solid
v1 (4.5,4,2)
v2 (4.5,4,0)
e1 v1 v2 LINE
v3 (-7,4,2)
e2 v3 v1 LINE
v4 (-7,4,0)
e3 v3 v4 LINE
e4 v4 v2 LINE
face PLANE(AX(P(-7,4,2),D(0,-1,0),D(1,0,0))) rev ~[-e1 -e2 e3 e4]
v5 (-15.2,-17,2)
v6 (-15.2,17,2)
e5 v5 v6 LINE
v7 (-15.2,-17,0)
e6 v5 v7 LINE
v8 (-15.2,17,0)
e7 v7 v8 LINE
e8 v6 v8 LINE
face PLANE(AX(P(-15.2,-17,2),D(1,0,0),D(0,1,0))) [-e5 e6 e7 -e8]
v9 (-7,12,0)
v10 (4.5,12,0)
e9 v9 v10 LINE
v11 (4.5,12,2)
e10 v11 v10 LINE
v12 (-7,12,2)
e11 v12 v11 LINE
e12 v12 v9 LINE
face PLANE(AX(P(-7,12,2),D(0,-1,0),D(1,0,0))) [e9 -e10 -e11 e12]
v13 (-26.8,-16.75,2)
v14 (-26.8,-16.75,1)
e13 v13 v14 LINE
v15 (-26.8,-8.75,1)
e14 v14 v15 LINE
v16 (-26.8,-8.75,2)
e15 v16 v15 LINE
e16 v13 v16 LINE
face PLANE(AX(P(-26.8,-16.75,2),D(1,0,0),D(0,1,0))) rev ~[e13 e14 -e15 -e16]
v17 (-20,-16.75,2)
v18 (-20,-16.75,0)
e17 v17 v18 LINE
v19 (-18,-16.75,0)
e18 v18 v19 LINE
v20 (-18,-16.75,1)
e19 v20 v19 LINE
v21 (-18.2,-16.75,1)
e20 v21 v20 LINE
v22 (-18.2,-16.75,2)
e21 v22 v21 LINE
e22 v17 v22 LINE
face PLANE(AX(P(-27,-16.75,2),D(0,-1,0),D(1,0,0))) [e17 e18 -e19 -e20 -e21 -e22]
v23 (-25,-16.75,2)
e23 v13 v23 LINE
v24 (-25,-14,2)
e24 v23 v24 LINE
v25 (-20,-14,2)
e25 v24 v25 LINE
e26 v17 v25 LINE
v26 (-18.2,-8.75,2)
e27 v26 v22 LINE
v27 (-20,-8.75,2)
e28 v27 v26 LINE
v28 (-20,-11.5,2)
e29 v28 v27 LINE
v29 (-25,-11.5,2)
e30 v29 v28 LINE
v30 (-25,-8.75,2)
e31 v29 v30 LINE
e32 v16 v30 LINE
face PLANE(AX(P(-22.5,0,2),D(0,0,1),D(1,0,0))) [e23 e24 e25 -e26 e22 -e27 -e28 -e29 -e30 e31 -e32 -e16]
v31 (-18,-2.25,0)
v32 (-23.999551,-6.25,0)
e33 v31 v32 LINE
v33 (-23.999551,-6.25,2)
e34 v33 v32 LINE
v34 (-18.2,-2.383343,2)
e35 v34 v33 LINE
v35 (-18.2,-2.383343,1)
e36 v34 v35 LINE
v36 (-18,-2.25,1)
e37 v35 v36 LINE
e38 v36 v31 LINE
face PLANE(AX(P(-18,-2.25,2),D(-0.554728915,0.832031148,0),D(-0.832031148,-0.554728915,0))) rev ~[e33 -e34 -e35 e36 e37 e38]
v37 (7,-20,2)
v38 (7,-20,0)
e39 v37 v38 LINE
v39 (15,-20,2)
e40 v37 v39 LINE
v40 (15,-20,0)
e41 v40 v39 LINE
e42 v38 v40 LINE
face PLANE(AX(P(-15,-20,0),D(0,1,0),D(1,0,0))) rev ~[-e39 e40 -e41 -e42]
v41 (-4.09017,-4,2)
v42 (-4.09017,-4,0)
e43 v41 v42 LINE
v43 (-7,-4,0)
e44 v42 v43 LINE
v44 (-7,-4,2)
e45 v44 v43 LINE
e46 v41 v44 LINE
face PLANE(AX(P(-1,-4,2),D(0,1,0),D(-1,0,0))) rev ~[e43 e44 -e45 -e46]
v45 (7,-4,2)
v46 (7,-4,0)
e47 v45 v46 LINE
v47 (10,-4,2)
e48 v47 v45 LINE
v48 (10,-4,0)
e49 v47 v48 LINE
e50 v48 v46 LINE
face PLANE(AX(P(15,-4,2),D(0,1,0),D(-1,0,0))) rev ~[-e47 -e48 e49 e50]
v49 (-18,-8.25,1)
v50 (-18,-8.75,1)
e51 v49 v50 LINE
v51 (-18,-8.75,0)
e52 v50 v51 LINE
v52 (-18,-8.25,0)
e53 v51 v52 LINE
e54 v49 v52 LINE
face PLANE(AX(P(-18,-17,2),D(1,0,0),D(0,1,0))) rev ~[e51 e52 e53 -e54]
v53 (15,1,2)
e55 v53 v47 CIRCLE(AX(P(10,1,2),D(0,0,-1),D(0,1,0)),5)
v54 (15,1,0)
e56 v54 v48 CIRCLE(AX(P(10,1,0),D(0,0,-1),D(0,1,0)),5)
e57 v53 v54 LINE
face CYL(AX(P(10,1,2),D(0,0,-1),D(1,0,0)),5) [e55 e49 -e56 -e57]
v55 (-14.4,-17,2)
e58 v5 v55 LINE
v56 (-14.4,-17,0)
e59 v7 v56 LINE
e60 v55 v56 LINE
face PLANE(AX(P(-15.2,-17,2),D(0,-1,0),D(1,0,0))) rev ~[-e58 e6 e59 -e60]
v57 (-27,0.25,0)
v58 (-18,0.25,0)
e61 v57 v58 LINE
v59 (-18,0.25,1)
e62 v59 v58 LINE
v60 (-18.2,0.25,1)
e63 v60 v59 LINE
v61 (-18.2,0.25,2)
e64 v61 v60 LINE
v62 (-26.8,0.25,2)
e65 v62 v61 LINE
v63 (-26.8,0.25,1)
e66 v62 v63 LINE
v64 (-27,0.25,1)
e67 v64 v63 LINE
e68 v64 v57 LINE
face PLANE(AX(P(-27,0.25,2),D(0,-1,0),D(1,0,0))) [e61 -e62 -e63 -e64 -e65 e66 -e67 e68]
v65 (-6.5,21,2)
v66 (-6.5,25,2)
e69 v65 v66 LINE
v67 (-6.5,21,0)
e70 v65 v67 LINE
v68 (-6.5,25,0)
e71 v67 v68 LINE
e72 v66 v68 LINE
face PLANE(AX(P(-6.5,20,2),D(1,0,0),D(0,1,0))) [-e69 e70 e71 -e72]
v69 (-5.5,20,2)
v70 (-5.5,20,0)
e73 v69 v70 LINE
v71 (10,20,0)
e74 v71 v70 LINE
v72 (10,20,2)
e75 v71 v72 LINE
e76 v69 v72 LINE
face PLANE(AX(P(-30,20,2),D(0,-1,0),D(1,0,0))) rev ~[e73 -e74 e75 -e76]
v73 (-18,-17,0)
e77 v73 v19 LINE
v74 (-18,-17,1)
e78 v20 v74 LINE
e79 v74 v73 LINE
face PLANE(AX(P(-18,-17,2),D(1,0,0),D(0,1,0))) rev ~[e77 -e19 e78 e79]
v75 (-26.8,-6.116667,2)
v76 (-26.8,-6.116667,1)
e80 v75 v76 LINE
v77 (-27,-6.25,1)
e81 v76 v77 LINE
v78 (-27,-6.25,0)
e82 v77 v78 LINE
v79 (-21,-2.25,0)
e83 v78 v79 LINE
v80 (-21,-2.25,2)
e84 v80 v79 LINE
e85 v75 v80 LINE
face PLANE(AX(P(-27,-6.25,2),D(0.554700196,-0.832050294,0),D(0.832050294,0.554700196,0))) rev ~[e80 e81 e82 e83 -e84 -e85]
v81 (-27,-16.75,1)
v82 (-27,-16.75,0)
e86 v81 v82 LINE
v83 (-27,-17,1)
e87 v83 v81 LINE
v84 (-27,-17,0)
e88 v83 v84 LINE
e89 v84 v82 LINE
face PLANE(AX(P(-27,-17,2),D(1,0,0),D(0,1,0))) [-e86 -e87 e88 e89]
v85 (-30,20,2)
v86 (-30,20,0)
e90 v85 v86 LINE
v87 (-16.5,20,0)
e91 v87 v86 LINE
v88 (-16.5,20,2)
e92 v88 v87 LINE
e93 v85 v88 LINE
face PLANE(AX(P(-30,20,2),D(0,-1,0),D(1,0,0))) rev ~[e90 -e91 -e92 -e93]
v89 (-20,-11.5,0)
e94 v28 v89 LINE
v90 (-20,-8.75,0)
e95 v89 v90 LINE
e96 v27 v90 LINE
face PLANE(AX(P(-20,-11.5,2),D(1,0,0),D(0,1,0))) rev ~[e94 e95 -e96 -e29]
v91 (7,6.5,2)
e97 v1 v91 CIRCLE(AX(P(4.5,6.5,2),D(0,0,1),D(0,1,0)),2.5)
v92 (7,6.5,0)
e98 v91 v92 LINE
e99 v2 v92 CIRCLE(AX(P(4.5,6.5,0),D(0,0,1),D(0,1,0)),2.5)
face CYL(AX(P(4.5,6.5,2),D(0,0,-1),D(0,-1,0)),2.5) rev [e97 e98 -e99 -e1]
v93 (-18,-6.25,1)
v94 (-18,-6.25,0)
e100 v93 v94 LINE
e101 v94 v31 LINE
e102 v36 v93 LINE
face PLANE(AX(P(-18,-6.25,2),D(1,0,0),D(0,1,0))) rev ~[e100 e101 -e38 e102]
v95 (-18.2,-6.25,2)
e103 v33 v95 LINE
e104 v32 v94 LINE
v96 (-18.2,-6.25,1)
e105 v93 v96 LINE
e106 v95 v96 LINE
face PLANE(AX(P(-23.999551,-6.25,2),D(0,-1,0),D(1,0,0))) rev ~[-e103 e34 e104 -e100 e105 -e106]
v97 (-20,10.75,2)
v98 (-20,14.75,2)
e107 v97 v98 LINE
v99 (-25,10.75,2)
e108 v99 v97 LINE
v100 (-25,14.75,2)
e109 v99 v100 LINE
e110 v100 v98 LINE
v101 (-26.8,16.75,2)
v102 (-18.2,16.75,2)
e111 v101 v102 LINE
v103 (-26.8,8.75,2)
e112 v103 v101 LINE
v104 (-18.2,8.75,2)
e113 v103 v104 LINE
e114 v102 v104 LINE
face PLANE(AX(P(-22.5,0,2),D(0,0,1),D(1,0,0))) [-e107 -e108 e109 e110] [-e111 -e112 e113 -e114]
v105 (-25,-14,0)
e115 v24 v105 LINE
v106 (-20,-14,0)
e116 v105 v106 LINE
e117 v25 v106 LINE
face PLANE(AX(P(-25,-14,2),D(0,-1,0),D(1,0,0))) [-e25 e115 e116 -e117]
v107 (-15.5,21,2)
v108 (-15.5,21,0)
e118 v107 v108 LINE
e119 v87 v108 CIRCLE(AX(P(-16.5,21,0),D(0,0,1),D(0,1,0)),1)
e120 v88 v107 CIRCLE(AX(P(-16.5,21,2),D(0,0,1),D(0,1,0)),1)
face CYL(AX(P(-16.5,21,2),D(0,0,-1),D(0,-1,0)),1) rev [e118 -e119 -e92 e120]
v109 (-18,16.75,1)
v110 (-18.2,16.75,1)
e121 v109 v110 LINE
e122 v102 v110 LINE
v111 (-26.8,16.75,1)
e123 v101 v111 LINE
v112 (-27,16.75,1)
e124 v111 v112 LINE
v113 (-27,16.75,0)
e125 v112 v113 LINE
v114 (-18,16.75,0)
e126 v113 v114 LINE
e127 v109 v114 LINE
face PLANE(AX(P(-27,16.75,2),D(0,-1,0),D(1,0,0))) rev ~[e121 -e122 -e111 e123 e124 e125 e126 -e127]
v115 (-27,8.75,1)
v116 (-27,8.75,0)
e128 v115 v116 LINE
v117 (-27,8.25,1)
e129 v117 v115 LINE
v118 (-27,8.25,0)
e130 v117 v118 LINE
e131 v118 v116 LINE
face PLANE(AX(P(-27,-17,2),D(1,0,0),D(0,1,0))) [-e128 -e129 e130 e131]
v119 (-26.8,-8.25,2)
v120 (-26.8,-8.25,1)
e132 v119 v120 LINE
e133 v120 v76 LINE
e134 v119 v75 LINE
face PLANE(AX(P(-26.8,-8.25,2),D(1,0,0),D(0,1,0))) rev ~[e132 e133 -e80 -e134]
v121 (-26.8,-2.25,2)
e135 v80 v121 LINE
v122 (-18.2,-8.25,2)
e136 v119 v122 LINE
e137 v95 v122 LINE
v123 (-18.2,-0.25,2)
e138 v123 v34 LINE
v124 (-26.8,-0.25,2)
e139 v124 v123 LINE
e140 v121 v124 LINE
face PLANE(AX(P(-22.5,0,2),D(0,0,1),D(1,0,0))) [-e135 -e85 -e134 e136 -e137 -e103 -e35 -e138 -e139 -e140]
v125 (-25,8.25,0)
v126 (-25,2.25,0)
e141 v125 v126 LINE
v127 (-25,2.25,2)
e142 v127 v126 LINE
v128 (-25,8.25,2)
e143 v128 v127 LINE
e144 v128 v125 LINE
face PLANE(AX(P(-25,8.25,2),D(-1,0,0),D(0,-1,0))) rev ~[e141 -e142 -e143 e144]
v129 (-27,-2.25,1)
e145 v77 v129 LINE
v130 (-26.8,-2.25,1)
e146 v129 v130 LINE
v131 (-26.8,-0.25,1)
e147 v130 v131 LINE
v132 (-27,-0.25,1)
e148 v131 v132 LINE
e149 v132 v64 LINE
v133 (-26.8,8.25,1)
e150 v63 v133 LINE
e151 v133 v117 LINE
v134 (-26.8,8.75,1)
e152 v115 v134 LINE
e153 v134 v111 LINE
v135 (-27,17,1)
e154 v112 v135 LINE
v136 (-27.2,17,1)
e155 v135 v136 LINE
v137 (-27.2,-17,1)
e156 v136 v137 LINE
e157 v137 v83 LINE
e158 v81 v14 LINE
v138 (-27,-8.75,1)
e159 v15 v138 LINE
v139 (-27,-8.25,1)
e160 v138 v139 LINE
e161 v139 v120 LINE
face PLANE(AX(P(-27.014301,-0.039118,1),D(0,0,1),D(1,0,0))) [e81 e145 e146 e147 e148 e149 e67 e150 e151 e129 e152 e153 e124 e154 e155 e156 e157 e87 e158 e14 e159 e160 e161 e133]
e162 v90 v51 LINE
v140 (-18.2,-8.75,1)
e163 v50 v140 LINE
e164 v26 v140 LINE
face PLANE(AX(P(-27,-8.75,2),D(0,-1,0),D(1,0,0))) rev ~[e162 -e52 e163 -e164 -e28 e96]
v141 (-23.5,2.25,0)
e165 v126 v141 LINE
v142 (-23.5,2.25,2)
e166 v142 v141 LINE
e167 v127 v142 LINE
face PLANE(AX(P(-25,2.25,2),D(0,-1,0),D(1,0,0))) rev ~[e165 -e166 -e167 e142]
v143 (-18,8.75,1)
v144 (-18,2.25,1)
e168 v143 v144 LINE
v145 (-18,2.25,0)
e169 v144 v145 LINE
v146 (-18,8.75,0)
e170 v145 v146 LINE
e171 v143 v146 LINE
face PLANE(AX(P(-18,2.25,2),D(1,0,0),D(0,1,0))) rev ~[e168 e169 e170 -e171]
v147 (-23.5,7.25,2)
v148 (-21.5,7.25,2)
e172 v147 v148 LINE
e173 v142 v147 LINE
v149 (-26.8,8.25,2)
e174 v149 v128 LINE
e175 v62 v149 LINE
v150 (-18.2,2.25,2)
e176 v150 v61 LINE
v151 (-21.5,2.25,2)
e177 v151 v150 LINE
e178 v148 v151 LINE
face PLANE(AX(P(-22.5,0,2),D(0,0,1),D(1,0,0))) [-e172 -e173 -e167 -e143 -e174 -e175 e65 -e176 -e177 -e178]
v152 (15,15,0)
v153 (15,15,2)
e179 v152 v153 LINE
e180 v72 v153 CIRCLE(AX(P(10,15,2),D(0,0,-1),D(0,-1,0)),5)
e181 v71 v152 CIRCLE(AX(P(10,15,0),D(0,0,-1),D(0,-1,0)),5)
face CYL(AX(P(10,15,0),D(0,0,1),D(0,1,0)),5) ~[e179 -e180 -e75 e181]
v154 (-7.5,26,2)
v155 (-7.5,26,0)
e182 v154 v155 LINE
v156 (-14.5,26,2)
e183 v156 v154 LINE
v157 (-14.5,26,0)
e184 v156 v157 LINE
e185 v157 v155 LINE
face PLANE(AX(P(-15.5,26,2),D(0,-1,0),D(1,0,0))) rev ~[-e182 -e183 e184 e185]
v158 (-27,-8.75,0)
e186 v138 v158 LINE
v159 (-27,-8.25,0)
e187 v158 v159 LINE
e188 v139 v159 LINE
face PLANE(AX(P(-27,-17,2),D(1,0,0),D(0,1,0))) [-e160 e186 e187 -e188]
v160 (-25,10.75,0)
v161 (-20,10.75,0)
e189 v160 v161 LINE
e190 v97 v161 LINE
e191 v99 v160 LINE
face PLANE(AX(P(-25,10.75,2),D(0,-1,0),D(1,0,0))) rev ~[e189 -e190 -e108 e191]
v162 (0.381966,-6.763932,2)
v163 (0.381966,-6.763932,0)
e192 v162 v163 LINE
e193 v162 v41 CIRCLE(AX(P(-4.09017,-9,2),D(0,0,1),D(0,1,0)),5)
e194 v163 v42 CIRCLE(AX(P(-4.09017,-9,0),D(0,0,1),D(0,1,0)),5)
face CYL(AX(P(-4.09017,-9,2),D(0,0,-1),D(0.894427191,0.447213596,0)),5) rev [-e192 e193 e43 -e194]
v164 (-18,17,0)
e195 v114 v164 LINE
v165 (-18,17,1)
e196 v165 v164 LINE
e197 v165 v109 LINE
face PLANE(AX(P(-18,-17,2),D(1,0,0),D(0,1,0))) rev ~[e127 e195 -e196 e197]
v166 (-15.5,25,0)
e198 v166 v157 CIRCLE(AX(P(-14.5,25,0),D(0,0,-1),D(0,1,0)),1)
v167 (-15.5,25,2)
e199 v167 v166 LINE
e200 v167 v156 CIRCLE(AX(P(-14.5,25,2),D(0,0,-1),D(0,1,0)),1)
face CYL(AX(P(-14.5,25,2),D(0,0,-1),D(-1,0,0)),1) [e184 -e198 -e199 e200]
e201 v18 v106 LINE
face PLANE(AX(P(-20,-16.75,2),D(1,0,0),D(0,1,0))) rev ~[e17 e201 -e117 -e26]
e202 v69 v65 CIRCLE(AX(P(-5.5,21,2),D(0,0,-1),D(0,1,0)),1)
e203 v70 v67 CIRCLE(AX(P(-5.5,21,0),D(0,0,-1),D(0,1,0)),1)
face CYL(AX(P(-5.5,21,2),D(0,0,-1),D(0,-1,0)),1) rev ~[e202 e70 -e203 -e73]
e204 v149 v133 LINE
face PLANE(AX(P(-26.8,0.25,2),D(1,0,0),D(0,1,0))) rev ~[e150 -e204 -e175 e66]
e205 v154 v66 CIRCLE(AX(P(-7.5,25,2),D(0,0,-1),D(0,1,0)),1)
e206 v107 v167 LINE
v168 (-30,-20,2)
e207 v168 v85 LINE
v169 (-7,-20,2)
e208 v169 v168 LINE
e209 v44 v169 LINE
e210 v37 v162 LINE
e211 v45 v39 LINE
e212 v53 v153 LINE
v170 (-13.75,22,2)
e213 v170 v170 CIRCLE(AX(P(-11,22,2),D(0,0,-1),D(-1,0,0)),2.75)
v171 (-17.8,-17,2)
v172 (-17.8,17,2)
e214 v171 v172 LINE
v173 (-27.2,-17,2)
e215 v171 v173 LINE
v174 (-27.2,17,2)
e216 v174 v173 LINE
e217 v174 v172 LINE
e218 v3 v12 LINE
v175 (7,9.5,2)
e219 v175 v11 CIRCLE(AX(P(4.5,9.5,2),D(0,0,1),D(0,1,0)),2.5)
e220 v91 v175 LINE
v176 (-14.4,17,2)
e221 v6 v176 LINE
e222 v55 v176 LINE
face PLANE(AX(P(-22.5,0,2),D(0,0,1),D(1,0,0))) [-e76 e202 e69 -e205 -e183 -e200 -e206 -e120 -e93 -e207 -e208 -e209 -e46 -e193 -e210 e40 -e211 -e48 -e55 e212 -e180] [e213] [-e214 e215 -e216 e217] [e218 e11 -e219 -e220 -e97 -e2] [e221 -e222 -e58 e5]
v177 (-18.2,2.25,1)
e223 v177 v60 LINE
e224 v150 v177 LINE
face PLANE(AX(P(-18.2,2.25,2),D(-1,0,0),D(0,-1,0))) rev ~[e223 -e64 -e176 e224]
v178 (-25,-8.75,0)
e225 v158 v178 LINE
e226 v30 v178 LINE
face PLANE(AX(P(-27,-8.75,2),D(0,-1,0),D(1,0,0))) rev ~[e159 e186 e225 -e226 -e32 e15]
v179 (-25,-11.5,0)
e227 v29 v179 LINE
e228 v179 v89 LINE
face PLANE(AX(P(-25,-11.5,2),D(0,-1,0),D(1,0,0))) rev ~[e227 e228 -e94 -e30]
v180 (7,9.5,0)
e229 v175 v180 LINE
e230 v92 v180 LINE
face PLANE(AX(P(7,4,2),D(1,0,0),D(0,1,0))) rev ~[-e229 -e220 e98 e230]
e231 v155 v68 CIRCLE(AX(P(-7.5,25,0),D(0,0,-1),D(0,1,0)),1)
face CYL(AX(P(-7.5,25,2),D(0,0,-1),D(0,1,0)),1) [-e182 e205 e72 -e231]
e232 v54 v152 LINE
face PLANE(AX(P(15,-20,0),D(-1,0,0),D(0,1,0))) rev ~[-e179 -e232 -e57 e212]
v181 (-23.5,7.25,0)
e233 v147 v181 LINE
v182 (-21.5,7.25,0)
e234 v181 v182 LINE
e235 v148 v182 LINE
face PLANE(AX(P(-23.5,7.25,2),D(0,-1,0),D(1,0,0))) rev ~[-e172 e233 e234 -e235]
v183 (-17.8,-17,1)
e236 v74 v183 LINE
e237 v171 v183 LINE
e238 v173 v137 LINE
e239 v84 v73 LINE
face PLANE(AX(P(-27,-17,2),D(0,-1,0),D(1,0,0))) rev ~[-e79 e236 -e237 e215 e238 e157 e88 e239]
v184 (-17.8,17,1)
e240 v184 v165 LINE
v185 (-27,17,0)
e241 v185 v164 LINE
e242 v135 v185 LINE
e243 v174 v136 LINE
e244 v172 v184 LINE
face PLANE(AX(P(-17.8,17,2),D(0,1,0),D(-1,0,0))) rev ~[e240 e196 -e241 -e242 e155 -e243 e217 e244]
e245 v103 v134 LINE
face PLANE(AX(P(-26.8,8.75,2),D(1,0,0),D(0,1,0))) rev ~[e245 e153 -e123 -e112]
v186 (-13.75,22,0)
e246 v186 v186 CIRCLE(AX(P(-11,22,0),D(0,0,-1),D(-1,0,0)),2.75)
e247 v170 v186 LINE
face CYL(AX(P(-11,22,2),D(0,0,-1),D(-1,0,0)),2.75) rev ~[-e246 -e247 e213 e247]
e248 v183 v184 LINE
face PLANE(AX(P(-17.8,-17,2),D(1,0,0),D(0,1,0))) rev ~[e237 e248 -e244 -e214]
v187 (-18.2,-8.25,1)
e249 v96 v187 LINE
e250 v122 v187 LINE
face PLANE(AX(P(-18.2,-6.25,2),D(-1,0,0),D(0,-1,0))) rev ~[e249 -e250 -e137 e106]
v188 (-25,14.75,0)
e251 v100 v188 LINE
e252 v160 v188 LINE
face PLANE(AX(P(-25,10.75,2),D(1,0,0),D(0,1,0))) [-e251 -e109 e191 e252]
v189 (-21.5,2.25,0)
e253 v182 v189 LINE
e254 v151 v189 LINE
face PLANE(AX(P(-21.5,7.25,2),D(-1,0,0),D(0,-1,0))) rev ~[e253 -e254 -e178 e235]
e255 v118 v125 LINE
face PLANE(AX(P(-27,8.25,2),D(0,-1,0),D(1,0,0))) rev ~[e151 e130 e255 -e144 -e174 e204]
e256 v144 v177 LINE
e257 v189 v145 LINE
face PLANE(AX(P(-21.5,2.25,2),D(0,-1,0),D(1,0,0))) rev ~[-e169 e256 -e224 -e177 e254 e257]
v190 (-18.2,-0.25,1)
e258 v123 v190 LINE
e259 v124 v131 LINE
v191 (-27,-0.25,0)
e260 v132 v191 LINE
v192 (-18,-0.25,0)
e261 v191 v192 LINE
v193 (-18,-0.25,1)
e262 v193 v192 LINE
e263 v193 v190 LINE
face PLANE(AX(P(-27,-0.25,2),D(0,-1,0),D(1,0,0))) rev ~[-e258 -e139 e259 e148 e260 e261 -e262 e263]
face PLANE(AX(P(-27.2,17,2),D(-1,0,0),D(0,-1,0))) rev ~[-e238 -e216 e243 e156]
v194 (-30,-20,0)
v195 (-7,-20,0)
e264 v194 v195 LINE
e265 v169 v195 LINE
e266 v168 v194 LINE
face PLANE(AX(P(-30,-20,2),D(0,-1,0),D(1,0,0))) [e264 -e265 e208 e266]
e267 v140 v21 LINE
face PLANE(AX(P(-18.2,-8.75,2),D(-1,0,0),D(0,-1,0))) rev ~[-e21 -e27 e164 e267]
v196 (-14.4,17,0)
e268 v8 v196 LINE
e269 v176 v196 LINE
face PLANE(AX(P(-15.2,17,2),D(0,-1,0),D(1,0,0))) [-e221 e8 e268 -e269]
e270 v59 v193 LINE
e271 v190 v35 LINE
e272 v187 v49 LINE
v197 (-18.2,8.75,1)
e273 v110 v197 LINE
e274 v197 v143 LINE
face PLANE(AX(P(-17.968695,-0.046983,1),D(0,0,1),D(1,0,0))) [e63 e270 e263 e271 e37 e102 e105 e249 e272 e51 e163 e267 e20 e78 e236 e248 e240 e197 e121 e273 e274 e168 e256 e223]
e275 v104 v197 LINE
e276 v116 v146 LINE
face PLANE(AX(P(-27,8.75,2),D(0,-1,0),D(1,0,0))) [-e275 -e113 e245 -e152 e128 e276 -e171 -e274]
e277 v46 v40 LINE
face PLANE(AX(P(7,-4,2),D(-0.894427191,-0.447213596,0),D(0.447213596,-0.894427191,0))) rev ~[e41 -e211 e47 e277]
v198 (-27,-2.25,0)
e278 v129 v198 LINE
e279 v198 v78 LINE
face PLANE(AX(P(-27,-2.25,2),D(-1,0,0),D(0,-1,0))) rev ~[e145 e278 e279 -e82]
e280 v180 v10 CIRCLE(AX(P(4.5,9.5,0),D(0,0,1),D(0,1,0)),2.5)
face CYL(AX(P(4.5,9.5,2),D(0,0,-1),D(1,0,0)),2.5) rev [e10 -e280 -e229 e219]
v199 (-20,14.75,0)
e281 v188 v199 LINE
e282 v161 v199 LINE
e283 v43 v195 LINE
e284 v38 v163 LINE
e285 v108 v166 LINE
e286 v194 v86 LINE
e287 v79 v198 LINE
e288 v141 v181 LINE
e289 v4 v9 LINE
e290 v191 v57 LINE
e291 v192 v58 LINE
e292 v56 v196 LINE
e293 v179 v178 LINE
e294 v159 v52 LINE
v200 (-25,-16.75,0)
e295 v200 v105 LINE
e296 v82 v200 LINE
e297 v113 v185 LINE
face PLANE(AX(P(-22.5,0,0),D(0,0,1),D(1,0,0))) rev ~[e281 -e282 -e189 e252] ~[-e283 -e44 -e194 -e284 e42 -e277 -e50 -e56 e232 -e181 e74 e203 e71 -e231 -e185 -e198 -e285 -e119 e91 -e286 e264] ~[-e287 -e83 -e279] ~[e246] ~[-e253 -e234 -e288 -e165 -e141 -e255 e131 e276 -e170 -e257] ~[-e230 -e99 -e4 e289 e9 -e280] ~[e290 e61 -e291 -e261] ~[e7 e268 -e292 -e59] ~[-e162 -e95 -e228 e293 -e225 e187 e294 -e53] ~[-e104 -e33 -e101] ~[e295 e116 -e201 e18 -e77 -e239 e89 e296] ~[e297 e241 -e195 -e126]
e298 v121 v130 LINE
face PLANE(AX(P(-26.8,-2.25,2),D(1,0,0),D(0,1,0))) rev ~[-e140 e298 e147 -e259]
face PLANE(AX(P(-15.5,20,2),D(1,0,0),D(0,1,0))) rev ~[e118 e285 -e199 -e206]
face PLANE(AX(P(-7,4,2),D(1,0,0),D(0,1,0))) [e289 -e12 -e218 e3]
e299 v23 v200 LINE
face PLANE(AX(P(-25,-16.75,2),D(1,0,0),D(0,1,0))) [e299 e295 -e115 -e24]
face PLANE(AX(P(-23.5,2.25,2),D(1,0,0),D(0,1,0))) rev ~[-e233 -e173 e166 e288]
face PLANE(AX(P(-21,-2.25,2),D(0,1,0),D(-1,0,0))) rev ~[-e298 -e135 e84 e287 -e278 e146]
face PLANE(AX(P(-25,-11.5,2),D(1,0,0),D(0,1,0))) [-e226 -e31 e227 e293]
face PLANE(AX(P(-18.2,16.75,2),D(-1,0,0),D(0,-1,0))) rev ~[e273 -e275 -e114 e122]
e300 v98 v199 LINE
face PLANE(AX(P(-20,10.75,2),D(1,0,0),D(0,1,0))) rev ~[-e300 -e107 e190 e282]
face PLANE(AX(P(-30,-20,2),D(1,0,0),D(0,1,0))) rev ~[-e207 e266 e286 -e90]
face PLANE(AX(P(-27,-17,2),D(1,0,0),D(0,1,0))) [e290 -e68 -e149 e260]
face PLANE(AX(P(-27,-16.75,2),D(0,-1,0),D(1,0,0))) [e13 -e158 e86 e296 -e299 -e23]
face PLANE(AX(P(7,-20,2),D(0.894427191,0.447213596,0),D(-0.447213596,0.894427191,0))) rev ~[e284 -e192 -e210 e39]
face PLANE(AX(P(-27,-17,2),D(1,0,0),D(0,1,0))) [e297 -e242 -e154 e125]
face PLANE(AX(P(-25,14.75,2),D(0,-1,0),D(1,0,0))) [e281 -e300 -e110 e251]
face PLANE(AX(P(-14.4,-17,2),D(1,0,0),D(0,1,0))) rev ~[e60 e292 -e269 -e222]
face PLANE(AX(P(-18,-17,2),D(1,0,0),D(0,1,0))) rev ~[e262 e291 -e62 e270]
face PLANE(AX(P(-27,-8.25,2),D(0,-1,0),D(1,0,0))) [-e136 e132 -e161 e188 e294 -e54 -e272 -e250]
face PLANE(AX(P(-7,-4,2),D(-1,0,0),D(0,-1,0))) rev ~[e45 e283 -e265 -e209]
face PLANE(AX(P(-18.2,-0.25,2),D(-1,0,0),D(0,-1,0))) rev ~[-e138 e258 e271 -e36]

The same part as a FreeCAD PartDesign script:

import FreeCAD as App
import Part
import Sketcher

V = App.Vector


def edges_at(feature, points):
    """Names of the edges that pass closest to the given points."""
    edges = feature.Shape.Edges
    near = lambda p: min(range(len(edges)), key=lambda i: edges[i].distToShape(Part.Vertex(*p))[0])
    return sorted({f"Edge{near(p) + 1}" for p in points})

doc = App.newDocument("Part")
body = doc.addObject("PartDesign::Body", "Body")

# Sketch on XY plane
sketch1 = body.newObject("Sketcher::SketchObject", "Sketch")
sketch1.AttachmentSupport = (doc.getObject("XY_Plane"), [""])
sketch1.MapMode = "FlatFace"
sketch1.addGeometry([
    Part.LineSegment(V(-15, 20, 0), V(-15, -20, 0)),
    Part.LineSegment(V(-15, -20, 0), V(15, -20, 0)),
    Part.LineSegment(V(15, -20, 0), V(15, 20, 0)),
    Part.LineSegment(V(15, 20, 0), V(-15, 20, 0)),
], False)
sketch1.addConstraint([
    Sketcher.Constraint("Coincident", 0, 2, 1, 1),
    Sketcher.Constraint("Coincident", 1, 2, 2, 1),
    Sketcher.Constraint("Coincident", 2, 2, 3, 1),
    Sketcher.Constraint("Coincident", 3, 2, 0, 1),
    Sketcher.Constraint("Vertical", 0),
    Sketcher.Constraint("Horizontal", 1),
    Sketcher.Constraint("Vertical", 2),
    Sketcher.Constraint("Horizontal", 3),
    Sketcher.Constraint("Symmetric", 0, 2, 2, 2, -1, 1),
    Sketcher.Constraint("DistanceX", 1, 1, 1, 2, 30.0),
    Sketcher.Constraint("DistanceY", 0, 2, 0, 1, 40.0),
])
pad1 = body.newObject("PartDesign::Pad", "Pad")
pad1.Profile = sketch1
pad1.Length = 2

# Sketch on XY plane
sketch2 = body.newObject("Sketcher::SketchObject", "Sketch001")
sketch2.AttachmentSupport = (doc.getObject("XY_Plane"), [""])
sketch2.MapMode = "FlatFace"
sketch2.AttachmentOffset = App.Placement(V(0, 0, 2), App.Rotation())
sketch2.addGeometry([
    Part.LineSegment(V(-7, 12, 0), V(-7, 4, 0)),
    Part.LineSegment(V(-7, 4, 0), V(7, 4, 0)),
    Part.LineSegment(V(7, 4, 0), V(7, 12, 0)),
    Part.LineSegment(V(7, 12, 0), V(-7, 12, 0)),
], False)
sketch2.addConstraint([
    Sketcher.Constraint("Coincident", 0, 2, 1, 1),
    Sketcher.Constraint("Coincident", 1, 2, 2, 1),
    Sketcher.Constraint("Coincident", 2, 2, 3, 1),
    Sketcher.Constraint("Coincident", 3, 2, 0, 1),
    Sketcher.Constraint("Vertical", 0),
    Sketcher.Constraint("Horizontal", 1),
    Sketcher.Constraint("Vertical", 2),
    Sketcher.Constraint("Horizontal", 3),
    Sketcher.Constraint("DistanceX", 1, 1, 1, 2, 14.0),
    Sketcher.Constraint("DistanceY", 0, 2, 0, 1, 8.0),
    Sketcher.Constraint("DistanceX", 0, 2, -1, 1, 7.0),
    Sketcher.Constraint("DistanceY", -1, 1, 0, 2, 4.0),
])
pocket1 = body.newObject("PartDesign::Pocket", "Pocket")
pocket1.Profile = sketch2
pocket1.Length = 10

# Sketch on XY plane
sketch3 = body.newObject("Sketcher::SketchObject", "Sketch002")
sketch3.AttachmentSupport = (doc.getObject("XY_Plane"), [""])
sketch3.MapMode = "FlatFace"
sketch3.AttachmentOffset = App.Placement(V(0, 0, 2), App.Rotation())
sketch3.addGeometry([
    Part.LineSegment(V(-1, -4, 0), V(-7, -4, 0)),  # 0
    Part.LineSegment(V(-7, -4, 0), V(-7, -20, 0)),  # 1
    Part.LineSegment(V(-7, -20, 0), V(7, -20, 0)),  # 2
    Part.LineSegment(V(7, -20, 0), V(-1, -4, 0)),  # 3
    Part.LineSegment(V(15, -4, 0), V(7, -4, 0)),  # 4
    Part.LineSegment(V(7, -4, 0), V(15, -20, 0)),  # 5
    Part.LineSegment(V(15, -20, 0), V(15, -4, 0)),  # 6
], False)
sketch3.addConstraint([
    Sketcher.Constraint("Coincident", 0, 2, 1, 1),
    Sketcher.Constraint("Coincident", 1, 2, 2, 1),
    Sketcher.Constraint("Coincident", 2, 2, 3, 1),
    Sketcher.Constraint("Coincident", 3, 2, 0, 1),
    Sketcher.Constraint("Coincident", 4, 2, 5, 1),
    Sketcher.Constraint("Coincident", 5, 2, 6, 1),
    Sketcher.Constraint("Coincident", 6, 2, 4, 1),
    Sketcher.Constraint("Horizontal", 0),
    Sketcher.Constraint("Vertical", 1),
    Sketcher.Constraint("Horizontal", 2),
    Sketcher.Constraint("Horizontal", 4),
    Sketcher.Constraint("Vertical", 6),
    Sketcher.Constraint("Symmetric", 0, 2, 4, 2, -2),
    Sketcher.Constraint("Parallel", 3, 5),
    Sketcher.Constraint("Horizontal", 2, 2, 5, 2),
    Sketcher.Constraint("Vertical", 2, 2, 4, 2),
    Sketcher.Constraint("DistanceX", 0, 2, 0, 1, 6.0),
    Sketcher.Constraint("DistanceX", 2, 1, 2, 2, 14.0),
    Sketcher.Constraint("DistanceY", 1, 2, 1, 1, 16.0),
    Sketcher.Constraint("DistanceY", 0, 2, -1, 1, 4.0),
])
pocket2 = body.newObject("PartDesign::Pocket", "Pocket001")
pocket2.Profile = sketch3
pocket2.Length = 10
doc.recompute()

fillet = body.newObject("PartDesign::Fillet", "Fillet")
fillet.Base = (pocket2, edges_at(pocket2, [(15, -4, 1), (15, 20, 1), (-1, -4, 1)]))
fillet.Radius = 5
doc.recompute()

fillet2 = body.newObject("PartDesign::Fillet", "Fillet001")
fillet2.Base = (fillet, edges_at(fillet, [(7, 12, 1), (7, 4, 1)]))
fillet2.Radius = 2.5

# Sketch on XY plane
sketch4 = body.newObject("Sketcher::SketchObject", "Sketch003")
sketch4.AttachmentSupport = (doc.getObject("XY_Plane"), [""])
sketch4.MapMode = "FlatFace"
sketch4.AttachmentOffset = App.Placement(V(0, 0, 2), App.Rotation())
sketch4.addGeometry([
    Part.LineSegment(V(-30, 20, 0), V(-30, -20, 0)),  # 0
    Part.LineSegment(V(-30, -20, 0), V(-15, -20, 0)),  # 1
    Part.LineSegment(V(-15, -20, 0), V(-15, 20, 0)),  # 2
    Part.LineSegment(V(-15, 20, 0), V(-30, 20, 0)),  # 3
    Part.LineSegment(V(-18, -17, 0), V(-27, -17, 0)),  # 4
    Part.LineSegment(V(-27, -17, 0), V(-27, 17, 0)),  # 5
    Part.LineSegment(V(-27, 17, 0), V(-18, 17, 0)),  # 6
    Part.LineSegment(V(-18, 17, 0), V(-18, -17, 0)),  # 7
], False)
sketch4.addConstraint([
    Sketcher.Constraint("Coincident", 0, 2, 1, 1),
    Sketcher.Constraint("Coincident", 1, 2, 2, 1),
    Sketcher.Constraint("Coincident", 2, 2, 3, 1),
    Sketcher.Constraint("Coincident", 3, 2, 0, 1),
    Sketcher.Constraint("Coincident", 4, 2, 5, 1),
    Sketcher.Constraint("Coincident", 5, 2, 6, 1),
    Sketcher.Constraint("Coincident", 6, 2, 7, 1),
    Sketcher.Constraint("Coincident", 7, 2, 4, 1),
    Sketcher.Constraint("Vertical", 0),
    Sketcher.Constraint("Horizontal", 1),
    Sketcher.Constraint("Vertical", 2),
    Sketcher.Constraint("Horizontal", 3),
    Sketcher.Constraint("Horizontal", 4),
    Sketcher.Constraint("Vertical", 5),
    Sketcher.Constraint("Horizontal", 6),
    Sketcher.Constraint("Vertical", 7),
    Sketcher.Constraint("DistanceX", 1, 1, 1, 2, 15.0),
    Sketcher.Constraint("DistanceX", 4, 2, 4, 1, 9.0),
    Sketcher.Constraint("DistanceY", 0, 2, 0, 1, 40.0),
    Sketcher.Constraint("DistanceY", 5, 1, 5, 2, 34.0),
    Sketcher.Constraint("DistanceX", 0, 2, -1, 1, 30.0),
    Sketcher.Constraint("DistanceY", 0, 2, -1, 1, 20.0),
    Sketcher.Constraint("DistanceX", 4, 2, -1, 1, 27.0),
    Sketcher.Constraint("DistanceY", 4, 2, -1, 1, 17.0),
])
pad2 = body.newObject("PartDesign::Pad", "Pad001")
pad2.Profile = sketch4
pad2.Length = 2
pad2.Reversed = True

# Sketch on XY plane
sketch5 = body.newObject("Sketcher::SketchObject", "Sketch004")
sketch5.AttachmentSupport = (doc.getObject("XY_Plane"), [""])
sketch5.MapMode = "FlatFace"
sketch5.AttachmentOffset = App.Placement(V(0, 0, 2), App.Rotation())
sketch5.addGeometry([
    Part.LineSegment(V(-15.2, 17, 0), V(-15.2, -17, 0)),
    Part.LineSegment(V(-15.2, -17, 0), V(-14.4, -17, 0)),
    Part.LineSegment(V(-14.4, -17, 0), V(-14.4, 17, 0)),
    Part.LineSegment(V(-14.4, 17, 0), V(-15.2, 17, 0)),
], False)
sketch5.addConstraint([
    Sketcher.Constraint("Coincident", 0, 2, 1, 1),
    Sketcher.Constraint("Coincident", 1, 2, 2, 1),
    Sketcher.Constraint("Coincident", 2, 2, 3, 1),
    Sketcher.Constraint("Coincident", 3, 2, 0, 1),
    Sketcher.Constraint("Vertical", 0),
    Sketcher.Constraint("Horizontal", 1),
    Sketcher.Constraint("Vertical", 2),
    Sketcher.Constraint("Horizontal", 3),
    Sketcher.Constraint("DistanceY", 0, 2, 0, 1, 34.0),
    Sketcher.Constraint("DistanceX", 1, 1, 1, 2, 0.8),
    Sketcher.Constraint("DistanceY", 0, 2, -1, 1, 17.0),
    Sketcher.Constraint("DistanceX", 0, 2, -1, 1, 15.2),
])
pocket3 = body.newObject("PartDesign::Pocket", "Pocket002")
pocket3.Profile = sketch5
pocket3.Length = 10

# Sketch on XY plane
sketch6 = body.newObject("Sketcher::SketchObject", "Sketch005")
sketch6.AttachmentSupport = (doc.getObject("XY_Plane"), [""])
sketch6.MapMode = "FlatFace"
sketch6.AttachmentOffset = App.Placement(V(0, 0, 2), App.Rotation())
sketch6.addGeometry([
    Part.LineSegment(V(-27, -8.75, 0), V(-27, -16.75, 0)),  # 0
    Part.LineSegment(V(-27, -16.75, 0), V(-18, -16.75, 0)),  # 1
    Part.LineSegment(V(-18, -16.75, 0), V(-18, -8.75, 0)),  # 2
    Part.LineSegment(V(-18, -8.75, 0), V(-27, -8.75, 0)),  # 3
    Part.LineSegment(V(-27, -0.25, 0), V(-27, -8.25, 0)),  # 4
    Part.LineSegment(V(-27, -8.25, 0), V(-18, -8.25, 0)),  # 5
    Part.LineSegment(V(-18, -8.25, 0), V(-18, -0.25, 0)),  # 6
    Part.LineSegment(V(-18, -0.25, 0), V(-27, -0.25, 0)),  # 7
    Part.LineSegment(V(-27, 8.25, 0), V(-27, 0.25, 0)),  # 8
    Part.LineSegment(V(-27, 0.25, 0), V(-18, 0.25, 0)),  # 9
    Part.LineSegment(V(-18, 0.25, 0), V(-18, 8.25, 0)),  # 10
    Part.LineSegment(V(-18, 8.25, 0), V(-27, 8.25, 0)),  # 11
    Part.LineSegment(V(-27, 16.75, 0), V(-27, 8.75, 0)),  # 12
    Part.LineSegment(V(-27, 8.75, 0), V(-18, 8.75, 0)),  # 13
    Part.LineSegment(V(-18, 8.75, 0), V(-18, 16.75, 0)),  # 14
    Part.LineSegment(V(-18, 16.75, 0), V(-27, 16.75, 0)),  # 15
], False)
sketch6.addConstraint([
    Sketcher.Constraint("Coincident", 0, 2, 1, 1),
    Sketcher.Constraint("Coincident", 1, 2, 2, 1),
    Sketcher.Constraint("Coincident", 2, 2, 3, 1),
    Sketcher.Constraint("Coincident", 3, 2, 0, 1),
    Sketcher.Constraint("Coincident", 4, 2, 5, 1),
    Sketcher.Constraint("Coincident", 5, 2, 6, 1),
    Sketcher.Constraint("Coincident", 6, 2, 7, 1),
    Sketcher.Constraint("Coincident", 7, 2, 4, 1),
    Sketcher.Constraint("Coincident", 8, 2, 9, 1),
    Sketcher.Constraint("Coincident", 9, 2, 10, 1),
    Sketcher.Constraint("Coincident", 10, 2, 11, 1),
    Sketcher.Constraint("Coincident", 11, 2, 8, 1),
    Sketcher.Constraint("Coincident", 12, 2, 13, 1),
    Sketcher.Constraint("Coincident", 13, 2, 14, 1),
    Sketcher.Constraint("Coincident", 14, 2, 15, 1),
    Sketcher.Constraint("Coincident", 15, 2, 12, 1),
    Sketcher.Constraint("Vertical", 0),
    Sketcher.Constraint("Horizontal", 1),
    Sketcher.Constraint("Vertical", 2),
    Sketcher.Constraint("Horizontal", 3),
    Sketcher.Constraint("Vertical", 4),
    Sketcher.Constraint("Horizontal", 5),
    Sketcher.Constraint("Vertical", 6),
    Sketcher.Constraint("Horizontal", 7),
    Sketcher.Constraint("Vertical", 8),
    Sketcher.Constraint("Horizontal", 9),
    Sketcher.Constraint("Vertical", 10),
    Sketcher.Constraint("Horizontal", 11),
    Sketcher.Constraint("Vertical", 12),
    Sketcher.Constraint("Horizontal", 13),
    Sketcher.Constraint("Vertical", 14),
    Sketcher.Constraint("Horizontal", 15),
    Sketcher.Constraint("Symmetric", 7, 2, 8, 2, -1),
    Sketcher.Constraint("Symmetric", 5, 2, 10, 2, -1),
    Sketcher.Constraint("Symmetric", 3, 2, 12, 2, -1),
    Sketcher.Constraint("Symmetric", 1, 2, 14, 2, -1),
    Sketcher.Constraint("Vertical", 3, 2, 4, 2),
    Sketcher.Constraint("Vertical", 2, 2, 5, 2),
    Sketcher.Constraint("Equal", 2, 4),
    Sketcher.Constraint("DistanceX", 1, 1, 1, 2, 9.0),
    Sketcher.Constraint("DistanceY", 0, 2, 0, 1, 8.0),
    Sketcher.Constraint("DistanceX", 0, 2, -1, 1, 27.0),
    Sketcher.Constraint("DistanceY", 3, 2, 8, 2, 9.0),
    Sketcher.Constraint("DistanceY", 3, 2, 4, 2, 0.5),
])
pad3 = body.newObject("PartDesign::Pad", "Pad002")
pad3.Profile = sketch6
pad3.Length = 2
pad3.Reversed = True

# Sketch on XY plane
sketch7 = body.newObject("Sketcher::SketchObject", "Sketch006")
sketch7.AttachmentSupport = (doc.getObject("XY_Plane"), [""])
sketch7.MapMode = "FlatFace"
sketch7.AttachmentOffset = App.Placement(V(0, 0, 2), App.Rotation())
sketch7.addGeometry([
    Part.LineSegment(V(-25, -14, 0), V(-25, -16.8, 0)),  # 0
    Part.LineSegment(V(-25, -16.8, 0), V(-20, -16.8, 0)),  # 1
    Part.LineSegment(V(-20, -16.8, 0), V(-20, -14, 0)),  # 2
    Part.LineSegment(V(-20, -14, 0), V(-25, -14, 0)),  # 3
    Part.LineSegment(V(-25, -8.8, 0), V(-25, -11.5, 0)),  # 4
    Part.LineSegment(V(-25, -11.5, 0), V(-20, -11.5, 0)),  # 5
    Part.LineSegment(V(-20, -11.5, 0), V(-20, -8.8, 0)),  # 6
    Part.LineSegment(V(-20, -8.8, 0), V(-25, -8.8, 0)),  # 7
    Part.LineSegment(V(-27, -2.2, 0), V(-27, -6.2, 0)),  # 8
    Part.LineSegment(V(-27, -6.2, 0), V(-21, -2.2, 0)),  # 9
    Part.LineSegment(V(-21, -2.2, 0), V(-27, -2.2, 0)),  # 10
    Part.LineSegment(V(-24, -6.2, 0), V(-18, -6.2, 0)),  # 11
    Part.LineSegment(V(-18, -6.2, 0), V(-18, -2.2, 0)),  # 12
    Part.LineSegment(V(-18, -2.2, 0), V(-24, -6.2, 0)),  # 13
    Part.LineSegment(V(-21.5, 2.2, 0), V(-18, 2.2, 0)),  # 14
    Part.LineSegment(V(-18, 2.2, 0), V(-18, 8.2, 0)),  # 15
    Part.LineSegment(V(-18, 8.2, 0), V(-25, 8.2, 0)),  # 16
    Part.LineSegment(V(-25, 8.2, 0), V(-25, 2.2, 0)),  # 17
    Part.LineSegment(V(-25, 2.2, 0), V(-23.5, 2.2, 0)),  # 18
    Part.LineSegment(V(-23.5, 2.2, 0), V(-23.5, 7.2, 0)),  # 19
    Part.LineSegment(V(-23.5, 7.2, 0), V(-21.5, 7.2, 0)),  # 20
    Part.LineSegment(V(-21.5, 7.2, 0), V(-21.5, 2.2, 0)),  # 21
    Part.LineSegment(V(-25, 14.8, 0), V(-25, 10.8, 0)),  # 22
    Part.LineSegment(V(-25, 10.8, 0), V(-20, 10.8, 0)),  # 23
    Part.LineSegment(V(-20, 10.8, 0), V(-20, 14.8, 0)),  # 24
    Part.LineSegment(V(-20, 14.8, 0), V(-25, 14.8, 0)),  # 25
], False)
sketch7.addConstraint([
    Sketcher.Constraint("Coincident", 0, 2, 1, 1),
    Sketcher.Constraint("Coincident", 1, 2, 2, 1),
    Sketcher.Constraint("Coincident", 2, 2, 3, 1),
    Sketcher.Constraint("Coincident", 3, 2, 0, 1),
    Sketcher.Constraint("Coincident", 4, 2, 5, 1),
    Sketcher.Constraint("Coincident", 5, 2, 6, 1),
    Sketcher.Constraint("Coincident", 6, 2, 7, 1),
    Sketcher.Constraint("Coincident", 7, 2, 4, 1),
    Sketcher.Constraint("Coincident", 8, 2, 9, 1),
    Sketcher.Constraint("Coincident", 9, 2, 10, 1),
    Sketcher.Constraint("Coincident", 10, 2, 8, 1),
    Sketcher.Constraint("Coincident", 11, 2, 12, 1),
    Sketcher.Constraint("Coincident", 12, 2, 13, 1),
    Sketcher.Constraint("Coincident", 13, 2, 11, 1),
    Sketcher.Constraint("Coincident", 14, 2, 15, 1),
    Sketcher.Constraint("Coincident", 15, 2, 16, 1),
    Sketcher.Constraint("Coincident", 16, 2, 17, 1),
    Sketcher.Constraint("Coincident", 17, 2, 18, 1),
    Sketcher.Constraint("Coincident", 18, 2, 19, 1),
    Sketcher.Constraint("Coincident", 19, 2, 20, 1),
    Sketcher.Constraint("Coincident", 20, 2, 21, 1),
    Sketcher.Constraint("Coincident", 21, 2, 14, 1),
    Sketcher.Constraint("Coincident", 22, 2, 23, 1),
    Sketcher.Constraint("Coincident", 23, 2, 24, 1),
    Sketcher.Constraint("Coincident", 24, 2, 25, 1),
    Sketcher.Constraint("Coincident", 25, 2, 22, 1),
    Sketcher.Constraint("Vertical", 0),
    Sketcher.Constraint("Horizontal", 1),
    Sketcher.Constraint("Vertical", 2),
    Sketcher.Constraint("Horizontal", 3),
    Sketcher.Constraint("Vertical", 4),
    Sketcher.Constraint("Horizontal", 5),
    Sketcher.Constraint("Vertical", 6),
    Sketcher.Constraint("Horizontal", 7),
    Sketcher.Constraint("Vertical", 8),
    Sketcher.Constraint("Horizontal", 10),
    Sketcher.Constraint("Horizontal", 11),
    Sketcher.Constraint("Vertical", 12),
    Sketcher.Constraint("Horizontal", 14),
    Sketcher.Constraint("Vertical", 15),
    Sketcher.Constraint("Horizontal", 16),
    Sketcher.Constraint("Vertical", 17),
    Sketcher.Constraint("Horizontal", 18),
    Sketcher.Constraint("Vertical", 19),
    Sketcher.Constraint("Horizontal", 20),
    Sketcher.Constraint("Vertical", 21),
    Sketcher.Constraint("Vertical", 22),
    Sketcher.Constraint("Horizontal", 23),
    Sketcher.Constraint("Vertical", 24),
    Sketcher.Constraint("Horizontal", 25),
    Sketcher.Constraint("Symmetric", 12, 2, 14, 2, -1),
    Sketcher.Constraint("Horizontal", 8, 2, 11, 2),
    Sketcher.Constraint("Horizontal", 10, 2, 12, 2),
    Sketcher.Constraint("Horizontal", 14, 2, 17, 2),
    Sketcher.Constraint("Vertical", 3, 2, 4, 2),
    Sketcher.Constraint("Vertical", 2, 2, 5, 2),
    Sketcher.Constraint("Vertical", 7, 2, 16, 2),
    Sketcher.Constraint("Vertical", 17, 2, 22, 2),
    Sketcher.Constraint("Vertical", 6, 2, 23, 2),
    Sketcher.Constraint("Equal", 2, 4),
    Sketcher.Constraint("Equal", 10, 15),
    Sketcher.Constraint("Equal", 25, 19),
    Sketcher.Constraint("Equal", 12, 22),
    Sketcher.Constraint("DistanceX", 1, 1, 1, 2, 5.0),
    Sketcher.Constraint("DistanceX", 10, 2, 10, 1, 6.0),
    Sketcher.Constraint("DistanceX", 16, 2, 16, 1, 7.0),
    Sketcher.Constraint("DistanceX", 20, 1, 20, 2, 2.0),
    Sketcher.Constraint("DistanceY", 8, 2, 8, 1, 4.0),
    Sketcher.Constraint("DistanceX", 14, 1, 14, 2, 3.5),
    Sketcher.Constraint("DistanceX", 0, 2, -1, 1, 25.0),
    Sketcher.Constraint("DistanceY", 2, 2, -1, 1, 14.0),
    Sketcher.Constraint("DistanceX", 8, 2, -1, 1, 27.0),
    Sketcher.Constraint("DistanceY", 1, 2, 6, 2, 8.0),
    Sketcher.Constraint("DistanceY", 0, 2, 0, 1, 2.75),
    Sketcher.Constraint("DistanceY", 7, 2, 8, 2, 2.5),
    Sketcher.Constraint("DistanceY", 16, 2, 22, 2, 2.5),
    Sketcher.Constraint("DistanceX", 11, 1, 11, 2, 5.999551),
])
pocket4 = body.newObject("PartDesign::Pocket", "Pocket003")
pocket4.Profile = sketch7
pocket4.Length = 10

# Sketch on XY plane
sketch8 = body.newObject("Sketcher::SketchObject", "Sketch007")
sketch8.AttachmentSupport = (doc.getObject("XY_Plane"), [""])
sketch8.MapMode = "FlatFace"
sketch8.AttachmentOffset = App.Placement(V(0, 0, 2), App.Rotation())
sketch8.addGeometry([
    Part.LineSegment(V(-27.2, 17, 0), V(-27.2, -17, 0)),  # 0
    Part.LineSegment(V(-27.2, -17, 0), V(-27, -17, 0)),  # 1
    Part.LineSegment(V(-27, -17, 0), V(-27, -16.75, 0)),  # 2
    Part.LineSegment(V(-27, -16.75, 0), V(-26.8, -16.75, 0)),  # 3
    Part.LineSegment(V(-26.8, -16.75, 0), V(-26.8, -8.75, 0)),  # 4
    Part.LineSegment(V(-26.8, -8.75, 0), V(-27, -8.75, 0)),  # 5
    Part.LineSegment(V(-27, -8.75, 0), V(-27, -8.25, 0)),  # 6
    Part.LineSegment(V(-27, -8.25, 0), V(-26.8, -8.25, 0)),  # 7
    Part.LineSegment(V(-26.8, -8.25, 0), V(-26.8, -6.12, 0)),  # 8
    Part.LineSegment(V(-26.8, -6.12, 0), V(-27, -6.25, 0)),  # 9
    Part.LineSegment(V(-27, -6.25, 0), V(-27, -2.25, 0)),  # 10
    Part.LineSegment(V(-27, -2.25, 0), V(-26.8, -2.25, 0)),  # 11
    Part.LineSegment(V(-26.8, -2.25, 0), V(-26.8, -0.25, 0)),  # 12
    Part.LineSegment(V(-26.8, -0.25, 0), V(-27, -0.25, 0)),  # 13
    Part.LineSegment(V(-27, -0.25, 0), V(-27, 0.25, 0)),  # 14
    Part.LineSegment(V(-27, 0.25, 0), V(-26.8, 0.25, 0)),  # 15
    Part.LineSegment(V(-26.8, 0.25, 0), V(-26.8, 8.25, 0)),  # 16
    Part.LineSegment(V(-26.8, 8.25, 0), V(-27, 8.25, 0)),  # 17
    Part.LineSegment(V(-27, 8.25, 0), V(-27, 8.75, 0)),  # 18
    Part.LineSegment(V(-27, 8.75, 0), V(-26.8, 8.75, 0)),  # 19
    Part.LineSegment(V(-26.8, 8.75, 0), V(-26.8, 16.75, 0)),  # 20
    Part.LineSegment(V(-26.8, 16.75, 0), V(-27, 16.75, 0)),  # 21
    Part.LineSegment(V(-27, 16.75, 0), V(-27, 17, 0)),  # 22
    Part.LineSegment(V(-27, 17, 0), V(-27.2, 17, 0)),  # 23
    Part.LineSegment(V(-18, -16.75, 0), V(-18, -17, 0)),  # 24
    Part.LineSegment(V(-18, -17, 0), V(-17.8, -17, 0)),  # 25
    Part.LineSegment(V(-17.8, -17, 0), V(-17.8, 17, 0)),  # 26
    Part.LineSegment(V(-17.8, 17, 0), V(-18, 17, 0)),  # 27
    Part.LineSegment(V(-18, 17, 0), V(-18, 16.75, 0)),  # 28
    Part.LineSegment(V(-18, 16.75, 0), V(-18.2, 16.75, 0)),  # 29
    Part.LineSegment(V(-18.2, 16.75, 0), V(-18.2, 8.75, 0)),  # 30
    Part.LineSegment(V(-18.2, 8.75, 0), V(-18, 8.75, 0)),  # 31
    Part.LineSegment(V(-18, 8.75, 0), V(-18, 2.25, 0)),  # 32
    Part.LineSegment(V(-18, 2.25, 0), V(-18.2, 2.25, 0)),  # 33
    Part.LineSegment(V(-18.2, 2.25, 0), V(-18.2, 0.25, 0)),  # 34
    Part.LineSegment(V(-18.2, 0.25, 0), V(-18, 0.25, 0)),  # 35
    Part.LineSegment(V(-18, 0.25, 0), V(-18, -0.25, 0)),  # 36
    Part.LineSegment(V(-18, -0.25, 0), V(-18.2, -0.25, 0)),  # 37
    Part.LineSegment(V(-18.2, -0.25, 0), V(-18.2, -2.38, 0)),  # 38
    Part.LineSegment(V(-18.2, -2.38, 0), V(-18, -2.25, 0)),  # 39
    Part.LineSegment(V(-18, -2.25, 0), V(-18, -6.25, 0)),  # 40
    Part.LineSegment(V(-18, -6.25, 0), V(-18.2, -6.25, 0)),  # 41
    Part.LineSegment(V(-18.2, -6.25, 0), V(-18.2, -8.25, 0)),  # 42
    Part.LineSegment(V(-18.2, -8.25, 0), V(-18, -8.25, 0)),  # 43
    Part.LineSegment(V(-18, -8.25, 0), V(-18, -8.75, 0)),  # 44
    Part.LineSegment(V(-18, -8.75, 0), V(-18.2, -8.75, 0)),  # 45
    Part.LineSegment(V(-18.2, -8.75, 0), V(-18.2, -16.75, 0)),  # 46
    Part.LineSegment(V(-18.2, -16.75, 0), V(-18, -16.75, 0)),  # 47
], False)
sketch8.addConstraint([
    Sketcher.Constraint("Coincident", 0, 2, 1, 1),
    Sketcher.Constraint("Coincident", 1, 2, 2, 1),
    Sketcher.Constraint("Coincident", 2, 2, 3, 1),
    Sketcher.Constraint("Coincident", 3, 2, 4, 1),
    Sketcher.Constraint("Coincident", 4, 2, 5, 1),
    Sketcher.Constraint("Coincident", 5, 2, 6, 1),
    Sketcher.Constraint("Coincident", 6, 2, 7, 1),
    Sketcher.Constraint("Coincident", 7, 2, 8, 1),
    Sketcher.Constraint("Coincident", 8, 2, 9, 1),
    Sketcher.Constraint("Coincident", 9, 2, 10, 1),
    Sketcher.Constraint("Coincident", 10, 2, 11, 1),
    Sketcher.Constraint("Coincident", 11, 2, 12, 1),
    Sketcher.Constraint("Coincident", 12, 2, 13, 1),
    Sketcher.Constraint("Coincident", 13, 2, 14, 1),
    Sketcher.Constraint("Coincident", 14, 2, 15, 1),
    Sketcher.Constraint("Coincident", 15, 2, 16, 1),
    Sketcher.Constraint("Coincident", 16, 2, 17, 1),
    Sketcher.Constraint("Coincident", 17, 2, 18, 1),
    Sketcher.Constraint("Coincident", 18, 2, 19, 1),
    Sketcher.Constraint("Coincident", 19, 2, 20, 1),
    Sketcher.Constraint("Coincident", 20, 2, 21, 1),
    Sketcher.Constraint("Coincident", 21, 2, 22, 1),
    Sketcher.Constraint("Coincident", 22, 2, 23, 1),
    Sketcher.Constraint("Coincident", 23, 2, 0, 1),
    Sketcher.Constraint("Coincident", 24, 2, 25, 1),
    Sketcher.Constraint("Coincident", 25, 2, 26, 1),
    Sketcher.Constraint("Coincident", 26, 2, 27, 1),
    Sketcher.Constraint("Coincident", 27, 2, 28, 1),
    Sketcher.Constraint("Coincident", 28, 2, 29, 1),
    Sketcher.Constraint("Coincident", 29, 2, 30, 1),
    Sketcher.Constraint("Coincident", 30, 2, 31, 1),
    Sketcher.Constraint("Coincident", 31, 2, 32, 1),
    Sketcher.Constraint("Coincident", 32, 2, 33, 1),
    Sketcher.Constraint("Coincident", 33, 2, 34, 1),
    Sketcher.Constraint("Coincident", 34, 2, 35, 1),
    Sketcher.Constraint("Coincident", 35, 2, 36, 1),
    Sketcher.Constraint("Coincident", 36, 2, 37, 1),
    Sketcher.Constraint("Coincident", 37, 2, 38, 1),
    Sketcher.Constraint("Coincident", 38, 2, 39, 1),
    Sketcher.Constraint("Coincident", 39, 2, 40, 1),
    Sketcher.Constraint("Coincident", 40, 2, 41, 1),
    Sketcher.Constraint("Coincident", 41, 2, 42, 1),
    Sketcher.Constraint("Coincident", 42, 2, 43, 1),
    Sketcher.Constraint("Coincident", 43, 2, 44, 1),
    Sketcher.Constraint("Coincident", 44, 2, 45, 1),
    Sketcher.Constraint("Coincident", 45, 2, 46, 1),
    Sketcher.Constraint("Coincident", 46, 2, 47, 1),
    Sketcher.Constraint("Coincident", 47, 2, 24, 1),
    Sketcher.Constraint("Vertical", 0),
    Sketcher.Constraint("Horizontal", 1),
    Sketcher.Constraint("Vertical", 2),
    Sketcher.Constraint("Horizontal", 3),
    Sketcher.Constraint("Vertical", 4),
    Sketcher.Constraint("Horizontal", 5),
    Sketcher.Constraint("Vertical", 6),
    Sketcher.Constraint("Horizontal", 7),
    Sketcher.Constraint("Vertical", 8),
    Sketcher.Constraint("Vertical", 10),
    Sketcher.Constraint("Horizontal", 11),
    Sketcher.Constraint("Vertical", 12),
    Sketcher.Constraint("Horizontal", 13),
    Sketcher.Constraint("Vertical", 14),
    Sketcher.Constraint("Horizontal", 15),
    Sketcher.Constraint("Vertical", 16),
    Sketcher.Constraint("Horizontal", 17),
    Sketcher.Constraint("Vertical", 18),
    Sketcher.Constraint("Horizontal", 19),
    Sketcher.Constraint("Vertical", 20),
    Sketcher.Constraint("Horizontal", 21),
    Sketcher.Constraint("Vertical", 22),
    Sketcher.Constraint("Horizontal", 23),
    Sketcher.Constraint("Vertical", 24),
    Sketcher.Constraint("Horizontal", 25),
    Sketcher.Constraint("Vertical", 26),
    Sketcher.Constraint("Horizontal", 27),
    Sketcher.Constraint("Vertical", 28),
    Sketcher.Constraint("Horizontal", 29),
    Sketcher.Constraint("Vertical", 30),
    Sketcher.Constraint("Horizontal", 31),
    Sketcher.Constraint("Vertical", 32),
    Sketcher.Constraint("Horizontal", 33),
    Sketcher.Constraint("Vertical", 34),
    Sketcher.Constraint("Horizontal", 35),
    Sketcher.Constraint("Vertical", 36),
    Sketcher.Constraint("Horizontal", 37),
    Sketcher.Constraint("Vertical", 38),
    Sketcher.Constraint("Vertical", 40),
    Sketcher.Constraint("Horizontal", 41),
    Sketcher.Constraint("Vertical", 42),
    Sketcher.Constraint("Horizontal", 43),
    Sketcher.Constraint("Vertical", 44),
    Sketcher.Constraint("Horizontal", 45),
    Sketcher.Constraint("Vertical", 46),
    Sketcher.Constraint("Horizontal", 47),
    Sketcher.Constraint("Symmetric", 12, 2, 15, 2, -1),
    Sketcher.Constraint("Symmetric", 7, 2, 16, 2, -1),
    Sketcher.Constraint("Symmetric", 5, 2, 18, 2, -1),
    Sketcher.Constraint("Symmetric", 3, 2, 20, 2, -1),
    Sketcher.Constraint("Symmetric", 1, 2, 22, 2, -1),
    Sketcher.Constraint("Symmetric", 24, 2, 27, 2, -1),
    Sketcher.Constraint("Symmetric", 34, 2, 37, 2, -1),
    Sketcher.Constraint("Symmetric", 32, 2, 39, 2, -1),
    Sketcher.Constraint("Symmetric", 31, 2, 44, 2, -1),
    Sketcher.Constraint("Symmetric", 29, 2, 46, 2, -1),
    Sketcher.Constraint("Horizontal", 1, 2, 24, 2),
    Sketcher.Constraint("Horizontal", 21, 2, 28, 2),
    Sketcher.Constraint("Horizontal", 19, 2, 30, 2),
    Sketcher.Constraint("Horizontal", 15, 2, 34, 2),
    Sketcher.Constraint("Horizontal", 11, 2, 39, 2),
    Sketcher.Constraint("Horizontal", 9, 2, 40, 2),
    Sketcher.Constraint("Horizontal", 7, 2, 42, 2),
    Sketcher.Constraint("Vertical", 2, 2, 5, 2),
    Sketcher.Constraint("Vertical", 4, 2, 7, 2),
    Sketcher.Constraint("Vertical", 6, 2, 9, 2),
    Sketcher.Constraint("Vertical", 10, 2, 13, 2),
    Sketcher.Constraint("Vertical", 28, 2, 31, 2),
    Sketcher.Constraint("Vertical", 30, 2, 33, 2),
    Sketcher.Constraint("Vertical", 32, 2, 35, 2),
    Sketcher.Constraint("Vertical", 38, 2, 41, 2),
    Sketcher.Constraint("Equal", 1, 3),
    Sketcher.Constraint("Equal", 23, 25),
    Sketcher.Constraint("Equal", 27, 29),
    Sketcher.Constraint("Equal", 6, 14),
    Sketcher.Constraint("Equal", 4, 16),
    Sketcher.Constraint("Equal", 34, 42),
    Sketcher.Constraint("DistanceY", 0, 2, 0, 1, 34.0),
    Sketcher.Constraint("DistanceY", 4, 1, 4, 2, 8.0),
    Sketcher.Constraint("DistanceY", 10, 1, 10, 2, 4.0),
    Sketcher.Constraint("DistanceX", 1, 1, 1, 2, 0.2),
    Sketcher.Constraint("DistanceY", 6, 1, 6, 2, 0.5),
    Sketcher.Constraint("DistanceX", 1, 2, -1, 1, 27.0),
    Sketcher.Constraint("DistanceX", 24, 2, -1, 1, 18.0),
    Sketcher.Constraint("Distance", 9, 0.24037),
    Sketcher.Constraint("DistanceY", 38, 2, 38, 1, 2.133343),
])
pocket5 = body.newObject("PartDesign::Pocket", "Pocket004")
pocket5.Profile = sketch8
pocket5.Length = 1

# Sketch on XY plane
sketch9 = body.newObject("Sketcher::SketchObject", "Sketch008")
sketch9.AttachmentSupport = (doc.getObject("XY_Plane"), [""])
sketch9.MapMode = "FlatFace"
sketch9.AttachmentOffset = App.Placement(V(0, 0, 2), App.Rotation())
sketch9.addGeometry([
    Part.LineSegment(V(-16, 26, 0), V(-16, 20, 0)),
    Part.LineSegment(V(-16, 20, 0), V(-6, 20, 0)),
    Part.LineSegment(V(-6, 20, 0), V(-6, 26, 0)),
    Part.LineSegment(V(-6, 26, 0), V(-16, 26, 0)),
], False)
sketch9.addConstraint([
    Sketcher.Constraint("Coincident", 0, 2, 1, 1),
    Sketcher.Constraint("Coincident", 1, 2, 2, 1),
    Sketcher.Constraint("Coincident", 2, 2, 3, 1),
    Sketcher.Constraint("Coincident", 3, 2, 0, 1),
    Sketcher.Constraint("Vertical", 0),
    Sketcher.Constraint("Horizontal", 1),
    Sketcher.Constraint("Vertical", 2),
    Sketcher.Constraint("Horizontal", 3),
    Sketcher.Constraint("DistanceX", 1, 1, 1, 2, 9.0),
    Sketcher.Constraint("DistanceY", 0, 2, 0, 1, 6.0),
    Sketcher.Constraint("DistanceY", -1, 1, 0, 2, 20.0),
    Sketcher.Constraint("DistanceX", 0, 2, -1, 1, 15.5),
])
pad4 = body.newObject("PartDesign::Pad", "Pad003")
pad4.Profile = sketch9
pad4.Length = 2
pad4.Reversed = True
doc.recompute()

fillet3 = body.newObject("PartDesign::Fillet", "Fillet002")
fillet3.Base = (pad4, edges_at(pad4, [
    (-15.5, 26, 1),
    (-6.5, 26, 1),
    (-6.5, 20, 1),
    (-15.5, 20, 1),
]))
fillet3.Radius = 1

# Sketch on XY plane
sketch10 = body.newObject("Sketcher::SketchObject", "Sketch009")
sketch10.AttachmentSupport = (doc.getObject("XY_Plane"), [""])
sketch10.MapMode = "FlatFace"
sketch10.AttachmentOffset = App.Placement(V(0, 0, 2), App.Rotation())
sketch10.addGeometry(Part.Circle(V(-11, 22, 0), V(0, 0, 1), 2.8), False)
sketch10.addConstraint([
    Sketcher.Constraint("Diameter", 0, 5.5),
    Sketcher.Constraint("DistanceX", 0, 3, -1, 1, 11.0),
    Sketcher.Constraint("DistanceY", -1, 1, 0, 3, 22.0),
])
doc.recompute()
hole = body.newObject("PartDesign::Hole", "Hole")
hole.Profile = sketch10
hole.ThreadType = "None"
hole.Diameter = 5.5
hole.DepthType = "ThroughAll"
hole.HoleCutType = "Counterbore"
hole.HoleCutDiameter = 6.5
hole.HoleCutDepth = 0

doc.recompute()
